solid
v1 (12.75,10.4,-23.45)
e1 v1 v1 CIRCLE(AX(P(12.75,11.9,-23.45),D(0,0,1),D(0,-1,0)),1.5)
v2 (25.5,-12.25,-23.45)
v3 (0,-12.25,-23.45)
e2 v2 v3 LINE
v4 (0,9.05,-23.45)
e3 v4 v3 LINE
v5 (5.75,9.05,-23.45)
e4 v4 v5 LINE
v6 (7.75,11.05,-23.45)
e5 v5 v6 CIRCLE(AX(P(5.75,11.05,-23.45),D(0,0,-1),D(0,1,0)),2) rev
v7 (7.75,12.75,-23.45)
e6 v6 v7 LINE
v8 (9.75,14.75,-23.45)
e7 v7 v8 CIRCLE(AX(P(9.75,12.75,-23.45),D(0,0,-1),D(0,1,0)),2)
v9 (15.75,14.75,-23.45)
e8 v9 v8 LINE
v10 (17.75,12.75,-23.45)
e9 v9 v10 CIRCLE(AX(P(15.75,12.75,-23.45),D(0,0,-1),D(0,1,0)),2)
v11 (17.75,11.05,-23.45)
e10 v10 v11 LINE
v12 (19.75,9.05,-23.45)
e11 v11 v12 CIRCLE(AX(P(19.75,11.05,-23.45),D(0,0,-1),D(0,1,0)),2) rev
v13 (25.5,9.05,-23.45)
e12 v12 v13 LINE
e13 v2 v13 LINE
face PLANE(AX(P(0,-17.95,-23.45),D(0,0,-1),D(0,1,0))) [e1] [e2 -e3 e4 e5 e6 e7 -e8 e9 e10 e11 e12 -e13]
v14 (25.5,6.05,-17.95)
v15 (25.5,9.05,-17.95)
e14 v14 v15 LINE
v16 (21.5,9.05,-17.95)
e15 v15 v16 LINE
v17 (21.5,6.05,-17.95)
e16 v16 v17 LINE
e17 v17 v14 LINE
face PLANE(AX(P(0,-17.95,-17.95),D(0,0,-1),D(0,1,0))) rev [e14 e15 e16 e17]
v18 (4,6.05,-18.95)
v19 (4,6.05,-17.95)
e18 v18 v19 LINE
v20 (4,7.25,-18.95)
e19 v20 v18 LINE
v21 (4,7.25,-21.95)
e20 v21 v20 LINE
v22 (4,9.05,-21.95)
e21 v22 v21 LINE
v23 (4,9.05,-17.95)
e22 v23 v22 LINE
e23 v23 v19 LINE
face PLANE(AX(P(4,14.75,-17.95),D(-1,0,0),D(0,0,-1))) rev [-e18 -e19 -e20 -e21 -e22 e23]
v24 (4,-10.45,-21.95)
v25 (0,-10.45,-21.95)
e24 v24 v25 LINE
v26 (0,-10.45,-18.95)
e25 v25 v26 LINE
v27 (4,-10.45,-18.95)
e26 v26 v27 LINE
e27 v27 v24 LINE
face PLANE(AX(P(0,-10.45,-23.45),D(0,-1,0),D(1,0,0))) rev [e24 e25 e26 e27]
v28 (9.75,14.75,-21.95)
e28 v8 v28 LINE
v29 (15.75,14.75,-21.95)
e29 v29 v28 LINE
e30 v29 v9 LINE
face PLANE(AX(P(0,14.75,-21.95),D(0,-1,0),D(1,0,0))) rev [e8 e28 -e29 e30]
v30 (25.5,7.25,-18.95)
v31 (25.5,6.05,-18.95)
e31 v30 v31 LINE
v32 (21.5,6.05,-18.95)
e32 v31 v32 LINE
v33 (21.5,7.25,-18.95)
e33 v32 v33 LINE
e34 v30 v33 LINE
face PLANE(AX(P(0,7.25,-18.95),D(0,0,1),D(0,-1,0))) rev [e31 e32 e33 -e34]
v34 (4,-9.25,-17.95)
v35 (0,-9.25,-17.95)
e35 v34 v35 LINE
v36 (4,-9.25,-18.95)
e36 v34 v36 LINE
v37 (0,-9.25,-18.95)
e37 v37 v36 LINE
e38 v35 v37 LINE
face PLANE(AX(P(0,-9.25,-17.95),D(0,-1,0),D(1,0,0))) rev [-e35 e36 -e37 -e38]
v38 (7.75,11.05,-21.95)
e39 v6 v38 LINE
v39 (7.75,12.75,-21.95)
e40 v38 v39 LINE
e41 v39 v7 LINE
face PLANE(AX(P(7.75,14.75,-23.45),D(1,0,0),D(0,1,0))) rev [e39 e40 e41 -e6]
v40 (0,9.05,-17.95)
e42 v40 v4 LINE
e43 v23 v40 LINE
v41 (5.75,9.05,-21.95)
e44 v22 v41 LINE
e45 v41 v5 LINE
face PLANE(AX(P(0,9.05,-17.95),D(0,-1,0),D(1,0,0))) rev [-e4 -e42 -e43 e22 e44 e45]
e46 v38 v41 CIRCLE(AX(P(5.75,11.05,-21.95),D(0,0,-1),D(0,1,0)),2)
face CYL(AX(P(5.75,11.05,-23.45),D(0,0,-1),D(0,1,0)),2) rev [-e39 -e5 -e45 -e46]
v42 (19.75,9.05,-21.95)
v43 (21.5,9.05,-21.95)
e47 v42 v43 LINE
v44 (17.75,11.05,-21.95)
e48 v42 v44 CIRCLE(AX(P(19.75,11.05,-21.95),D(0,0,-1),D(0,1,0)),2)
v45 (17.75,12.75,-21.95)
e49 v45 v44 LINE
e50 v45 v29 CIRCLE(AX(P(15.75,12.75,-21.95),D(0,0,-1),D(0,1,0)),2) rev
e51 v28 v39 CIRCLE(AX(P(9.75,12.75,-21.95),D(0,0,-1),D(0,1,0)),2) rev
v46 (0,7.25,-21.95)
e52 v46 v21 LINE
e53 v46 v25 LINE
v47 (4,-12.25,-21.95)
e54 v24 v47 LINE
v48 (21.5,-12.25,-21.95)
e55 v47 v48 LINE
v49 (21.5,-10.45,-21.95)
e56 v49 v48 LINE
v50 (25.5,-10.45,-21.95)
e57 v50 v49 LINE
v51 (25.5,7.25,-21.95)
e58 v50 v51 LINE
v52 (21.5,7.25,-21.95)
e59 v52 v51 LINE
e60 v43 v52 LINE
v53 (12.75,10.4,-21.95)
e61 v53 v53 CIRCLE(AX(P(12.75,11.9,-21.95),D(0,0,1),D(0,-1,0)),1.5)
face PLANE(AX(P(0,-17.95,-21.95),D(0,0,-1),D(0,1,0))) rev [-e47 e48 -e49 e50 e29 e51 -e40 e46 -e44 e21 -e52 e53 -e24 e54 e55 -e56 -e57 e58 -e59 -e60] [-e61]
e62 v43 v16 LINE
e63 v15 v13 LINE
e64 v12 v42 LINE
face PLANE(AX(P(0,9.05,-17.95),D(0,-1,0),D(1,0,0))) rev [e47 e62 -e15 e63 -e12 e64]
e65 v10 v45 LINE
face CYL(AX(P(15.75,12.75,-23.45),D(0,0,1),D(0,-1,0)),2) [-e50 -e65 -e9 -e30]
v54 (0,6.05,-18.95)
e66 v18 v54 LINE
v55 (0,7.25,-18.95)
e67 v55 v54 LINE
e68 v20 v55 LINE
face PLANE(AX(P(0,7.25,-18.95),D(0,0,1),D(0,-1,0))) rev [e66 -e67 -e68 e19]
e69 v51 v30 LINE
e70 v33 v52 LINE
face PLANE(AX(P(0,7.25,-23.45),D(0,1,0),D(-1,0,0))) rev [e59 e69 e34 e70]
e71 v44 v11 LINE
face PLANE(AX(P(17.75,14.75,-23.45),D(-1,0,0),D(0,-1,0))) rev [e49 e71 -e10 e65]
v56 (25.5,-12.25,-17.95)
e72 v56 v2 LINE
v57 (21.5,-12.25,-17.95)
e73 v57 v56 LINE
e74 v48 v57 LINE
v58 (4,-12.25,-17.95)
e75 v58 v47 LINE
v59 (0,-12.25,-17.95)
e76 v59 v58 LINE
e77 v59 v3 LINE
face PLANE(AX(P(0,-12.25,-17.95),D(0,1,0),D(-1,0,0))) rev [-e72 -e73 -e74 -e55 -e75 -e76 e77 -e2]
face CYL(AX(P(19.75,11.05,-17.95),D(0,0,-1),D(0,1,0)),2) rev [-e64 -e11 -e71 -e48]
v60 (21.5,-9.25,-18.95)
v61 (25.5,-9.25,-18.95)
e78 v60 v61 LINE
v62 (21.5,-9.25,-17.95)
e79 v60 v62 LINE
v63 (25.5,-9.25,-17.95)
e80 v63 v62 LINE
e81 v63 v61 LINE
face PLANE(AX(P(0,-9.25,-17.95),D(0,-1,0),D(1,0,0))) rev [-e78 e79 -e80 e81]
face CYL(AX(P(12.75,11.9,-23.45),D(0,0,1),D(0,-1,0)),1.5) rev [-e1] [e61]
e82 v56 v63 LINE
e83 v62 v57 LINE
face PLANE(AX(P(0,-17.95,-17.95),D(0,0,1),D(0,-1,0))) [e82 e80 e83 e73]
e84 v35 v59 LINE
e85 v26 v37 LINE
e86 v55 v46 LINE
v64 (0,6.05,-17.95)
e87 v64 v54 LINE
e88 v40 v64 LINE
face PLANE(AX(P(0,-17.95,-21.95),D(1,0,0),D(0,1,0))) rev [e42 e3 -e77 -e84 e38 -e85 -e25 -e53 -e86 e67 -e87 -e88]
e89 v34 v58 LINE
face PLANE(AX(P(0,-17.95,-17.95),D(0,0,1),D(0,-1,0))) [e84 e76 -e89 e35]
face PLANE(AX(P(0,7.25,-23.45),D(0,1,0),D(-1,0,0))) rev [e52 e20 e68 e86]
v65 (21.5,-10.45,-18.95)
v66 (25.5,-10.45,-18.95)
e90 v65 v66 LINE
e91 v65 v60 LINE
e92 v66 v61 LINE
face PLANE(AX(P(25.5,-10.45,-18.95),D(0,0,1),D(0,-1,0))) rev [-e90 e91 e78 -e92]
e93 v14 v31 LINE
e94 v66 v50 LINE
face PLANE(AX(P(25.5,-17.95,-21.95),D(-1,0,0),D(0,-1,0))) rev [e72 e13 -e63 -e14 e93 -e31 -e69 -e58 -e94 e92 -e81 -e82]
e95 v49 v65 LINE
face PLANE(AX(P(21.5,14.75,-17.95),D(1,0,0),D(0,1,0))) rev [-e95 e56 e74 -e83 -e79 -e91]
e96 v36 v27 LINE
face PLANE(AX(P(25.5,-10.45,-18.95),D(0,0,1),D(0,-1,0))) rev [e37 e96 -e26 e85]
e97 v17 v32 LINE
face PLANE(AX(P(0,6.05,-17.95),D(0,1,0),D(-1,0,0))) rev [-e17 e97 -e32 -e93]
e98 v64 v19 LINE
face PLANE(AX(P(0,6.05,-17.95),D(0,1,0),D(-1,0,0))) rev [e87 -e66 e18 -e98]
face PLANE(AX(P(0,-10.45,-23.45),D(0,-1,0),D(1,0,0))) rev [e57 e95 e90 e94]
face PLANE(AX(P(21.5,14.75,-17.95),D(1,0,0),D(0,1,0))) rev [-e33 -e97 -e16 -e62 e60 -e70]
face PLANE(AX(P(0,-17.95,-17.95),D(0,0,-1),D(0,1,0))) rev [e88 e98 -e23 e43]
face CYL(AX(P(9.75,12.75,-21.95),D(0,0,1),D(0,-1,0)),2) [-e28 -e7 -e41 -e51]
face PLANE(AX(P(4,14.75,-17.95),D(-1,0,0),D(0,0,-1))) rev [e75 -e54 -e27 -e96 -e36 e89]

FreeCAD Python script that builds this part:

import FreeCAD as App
import Part
import Sketcher
Q = App.Units.Quantity


def edges_at(feature, points):
    """Names of the edges that pass closest to the given points."""
    edges = feature.Shape.Edges
    near = lambda p: min(range(len(edges)), key=lambda i: edges[i].distToShape(Part.Vertex(*p))[0])
    return sorted({f"Edge{near(p) + 1}" for p in points})


def add_polygon(sketch, points):
    """Adds a closed chain of lines whose ends are joined by coincident constraints."""
    first, n = sketch.GeometryCount, len(points)
    for a, b in zip(points, points[1:] + points[:1]):
        sketch.addGeometry(Part.LineSegment(App.Vector(*a, 0), App.Vector(*b, 0)), False)
    for i in range(n):
        sketch.addConstraint(Sketcher.Constraint("Coincident", first + i, 2, first + (i + 1) % n, 1))

doc = App.newDocument("Part")
body = doc.addObject("PartDesign::Body", "Body")

# Sketch on XZ plane
sketch1 = body.newObject("Sketcher::SketchObject", "Sketch")
sketch1.AttachmentSupport = (doc.getObject("XZ_Plane"), [""])
sketch1.MapMode = "FlatFace"
add_polygon(sketch1, [(0, -33), (0, 0), (26, 0), (26, -33)])  # lines 0-3
sketch1.addConstraint(Sketcher.Constraint("Vertical", 0))
sketch1.addConstraint(Sketcher.Constraint("Horizontal", 1))
sketch1.addConstraint(Sketcher.Constraint("Vertical", 2))
sketch1.addConstraint(Sketcher.Constraint("Horizontal", 3))
sketch1.addConstraint(Sketcher.Constraint("Coincident", 0, 2, -1, 1))
sketch1.addConstraint(Sketcher.Constraint("DistanceX", 1, 1, 1, 2, Q("25.5 mm")))
sketch1.addConstraint(Sketcher.Constraint("DistanceY", 0, 1, 0, 2, Q("32.7 mm")))
pad1 = body.newObject("PartDesign::Pad", "Pad")
pad1.Profile = sketch1
pad1.Length = 1.5
pad1.Reversed = True

# Sketch on XZ plane
sketch2 = body.newObject("Sketcher::SketchObject", "Sketch001")
sketch2.AttachmentSupport = (doc.getObject("XZ_Plane"), [""])
sketch2.MapMode = "FlatFace"
sketch2.AttachmentOffset = App.Placement(App.Vector(0, 0, -1.5), App.Rotation())
add_polygon(sketch2, [(0, -27), (0, -24), (25.5, -24), (25.5, -27)])  # lines 0-3
add_polygon(sketch2, [(0, -8.7), (0, -5.7), (25.5, -5.7), (25.5, -8.7)])  # lines 4-7
sketch2.addConstraint(Sketcher.Constraint("Vertical", 0))
sketch2.addConstraint(Sketcher.Constraint("Horizontal", 1))
sketch2.addConstraint(Sketcher.Constraint("Vertical", 2))
sketch2.addConstraint(Sketcher.Constraint("Horizontal", 3))
sketch2.addConstraint(Sketcher.Constraint("Vertical", 4))
sketch2.addConstraint(Sketcher.Constraint("Horizontal", 5))
sketch2.addConstraint(Sketcher.Constraint("Vertical", 6))
sketch2.addConstraint(Sketcher.Constraint("Horizontal", 7))
sketch2.addConstraint(Sketcher.Constraint("PointOnObject", 0, 2, -2))
sketch2.addConstraint(Sketcher.Constraint("PointOnObject", 4, 2, -2))
sketch2.addConstraint(Sketcher.Constraint("Vertical", 2, 2, 5, 2))
sketch2.addConstraint(Sketcher.Constraint("Equal", 2, 4))
sketch2.addConstraint(Sketcher.Constraint("DistanceY", 0, 1, 0, 2, Q("3 mm")))
sketch2.addConstraint(Sketcher.Constraint("DistanceX", 1, 1, 1, 2, Q("25.5 mm")))
sketch2.addConstraint(Sketcher.Constraint("DistanceY", 0, 2, -1, 1, Q("24 mm")))
sketch2.addConstraint(Sketcher.Constraint("DistanceY", 4, 2, -1, 1, Q("5.7 mm")))
pad2 = body.newObject("PartDesign::Pad", "Pad001")
pad2.Profile = sketch2
pad2.Length = 4
pad2.Reversed = True

# Sketch on XY plane
sketch3 = body.newObject("Sketcher::SketchObject", "Sketch002")
sketch3.AttachmentSupport = (doc.getObject("XY_Plane"), [""])
sketch3.MapMode = "FlatFace"
sketch3.AttachmentOffset = App.Placement(App.Vector(0, 0, -24), App.Rotation())
add_polygon(sketch3, [(0, 4.5), (0, 1.5), (25.5, 1.5), (25.5, 4.5)])  # lines 0-3
sketch3.addConstraint(Sketcher.Constraint("Vertical", 0))
sketch3.addConstraint(Sketcher.Constraint("Horizontal", 1))
sketch3.addConstraint(Sketcher.Constraint("Vertical", 2))
sketch3.addConstraint(Sketcher.Constraint("Horizontal", 3))
sketch3.addConstraint(Sketcher.Constraint("PointOnObject", 0, 2, -2))
sketch3.addConstraint(Sketcher.Constraint("DistanceY", 0, 2, 0, 1, Q("3 mm")))
sketch3.addConstraint(Sketcher.Constraint("DistanceX", 1, 1, 1, 2, Q("25.5 mm")))
sketch3.addConstraint(Sketcher.Constraint("DistanceY", -1, 1, 0, 2, Q("1.5 mm")))
pocket1 = body.newObject("PartDesign::Pocket", "Pocket")
pocket1.Profile = sketch3
pocket1.Length = 1.2

# Sketch on XY plane
sketch4 = body.newObject("Sketcher::SketchObject", "Sketch003")
sketch4.AttachmentSupport = (doc.getObject("XY_Plane"), [""])
sketch4.MapMode = "FlatFace"
sketch4.AttachmentOffset = App.Placement(App.Vector(0, 0, -8.7), App.Rotation())
add_polygon(sketch4, [(25.5, 4.5), (25.5, 1.5), (0, 1.5), (0, 4.5)])  # lines 0-3
sketch4.addConstraint(Sketcher.Constraint("Vertical", 0))
sketch4.addConstraint(Sketcher.Constraint("Horizontal", 1))
sketch4.addConstraint(Sketcher.Constraint("Vertical", 2))
sketch4.addConstraint(Sketcher.Constraint("Horizontal", 3))
sketch4.addConstraint(Sketcher.Constraint("PointOnObject", 1, 2, -2))
sketch4.addConstraint(Sketcher.Constraint("DistanceY", 0, 2, 0, 1, Q("3 mm")))
sketch4.addConstraint(Sketcher.Constraint("DistanceX", 1, 2, 1, 1, Q("25.5 mm")))
sketch4.addConstraint(Sketcher.Constraint("DistanceY", -1, 1, 0, 2, Q("1.5 mm")))
pocket2 = body.newObject("PartDesign::Pocket", "Pocket001")
pocket2.Profile = sketch4
pocket2.Length = 1.2
pocket2.Reversed = True

# Sketch on XZ plane
sketch5 = body.newObject("Sketcher::SketchObject", "Sketch004")
sketch5.AttachmentSupport = (doc.getObject("XZ_Plane"), [""])
sketch5.MapMode = "FlatFace"
sketch5.AttachmentOffset = App.Placement(App.Vector(0, 0, -1.5), App.Rotation())
sketch5.addGeometry(Part.Circle(App.Vector(12.8, -29.9, 0), App.Vector(0, 0, 1), 1.5), False)
sketch5.addGeometry(Part.Circle(App.Vector(12.8, -2.9, 0), App.Vector(0, 0, 1), 1.5), False)
sketch5.addConstraint(Sketcher.Constraint("Equal", 0, 1))
sketch5.addConstraint(Sketcher.Constraint("Vertical", 0, 3, 1, 3))
sketch5.addConstraint(Sketcher.Constraint("Diameter", 0, Q("3 mm")))
sketch5.addConstraint(Sketcher.Constraint("DistanceY", 0, 3, 1, 3, Q("27 mm")))
sketch5.addConstraint(Sketcher.Constraint("DistanceX", -1, 1, 0, 3, Q("12.75 mm")))
sketch5.addConstraint(Sketcher.Constraint("DistanceY", 0, 3, -1, 1, Q("29.85 mm")))
pocket3 = body.newObject("PartDesign::Pocket", "Pocket002")
pocket3.Profile = sketch5
pocket3.Type = "ThroughAll"
pocket3.Reversed = True

# Sketch on XZ plane
sketch6 = body.newObject("Sketcher::SketchObject", "Sketch005")
sketch6.AttachmentSupport = (doc.getObject("XZ_Plane"), [""])
sketch6.MapMode = "FlatFace"
add_polygon(sketch6, [(0, -6), (0, 0), (26, 0), (26, -6)])  # lines 0-3
sketch6.addConstraint(Sketcher.Constraint("Vertical", 0))
sketch6.addConstraint(Sketcher.Constraint("Horizontal", 1))
sketch6.addConstraint(Sketcher.Constraint("Vertical", 2))
sketch6.addConstraint(Sketcher.Constraint("Horizontal", 3))
sketch6.addConstraint(Sketcher.Constraint("Coincident", 0, 2, -1, 1))
sketch6.addConstraint(Sketcher.Constraint("DistanceX", 1, 1, 1, 2, Q("25.5 mm")))
sketch6.addConstraint(Sketcher.Constraint("DistanceY", 0, 1, 0, 2, Q("5.7 mm")))
pocket4 = body.newObject("PartDesign::Pocket", "Pocket003")
pocket4.Profile = sketch6
pocket4.Type = "ThroughAll"

# Sketch on XY plane
sketch7 = body.newObject("Sketcher::SketchObject", "Sketch006")
sketch7.AttachmentSupport = (doc.getObject("XY_Plane"), [""])
sketch7.MapMode = "FlatFace"
sketch7.AttachmentOffset = App.Placement(App.Vector(0, 0, -5.7), App.Rotation())
add_polygon(sketch7, [(4, 5.5), (4, 1.5), (21.5, 1.5), (21.5, 5.5)])  # lines 0-3
sketch7.addConstraint(Sketcher.Constraint("Vertical", 0))
sketch7.addConstraint(Sketcher.Constraint("Horizontal", 1))
sketch7.addConstraint(Sketcher.Constraint("Vertical", 2))
sketch7.addConstraint(Sketcher.Constraint("Horizontal", 3))
sketch7.addConstraint(Sketcher.Constraint("DistanceY", 0, 2, 0, 1, Q("4 mm")))
sketch7.addConstraint(Sketcher.Constraint("DistanceX", 1, 1, 1, 2, Q("17.5 mm")))
sketch7.addConstraint(Sketcher.Constraint("DistanceX", -1, 1, 0, 2, Q("4 mm")))
sketch7.addConstraint(Sketcher.Constraint("DistanceY", -1, 1, 0, 2, Q("1.5 mm")))
pocket5 = body.newObject("PartDesign::Pocket", "Pocket004")
pocket5.Profile = sketch7
pocket5.Type = "ThroughAll"

# Sketch on XZ plane
sketch8 = body.newObject("Sketcher::SketchObject", "Sketch007")
sketch8.AttachmentSupport = (doc.getObject("XZ_Plane"), [""])
sketch8.MapMode = "FlatFace"
sketch8.AttachmentOffset = App.Placement(App.Vector(0, 0, -1.5), App.Rotation())
add_polygon(sketch8, [(0, -33), (0, -27), (8, -27), (8, -33)])  # lines 0-3
add_polygon(sketch8, [(18, -33), (18, -27), (26, -27), (26, -33)])  # lines 4-7
sketch8.addConstraint(Sketcher.Constraint("Vertical", 0))
sketch8.addConstraint(Sketcher.Constraint("Horizontal", 1))
sketch8.addConstraint(Sketcher.Constraint("Vertical", 2))
sketch8.addConstraint(Sketcher.Constraint("Horizontal", 3))
sketch8.addConstraint(Sketcher.Constraint("Vertical", 4))
sketch8.addConstraint(Sketcher.Constraint("Horizontal", 5))
sketch8.addConstraint(Sketcher.Constraint("Vertical", 6))
sketch8.addConstraint(Sketcher.Constraint("Horizontal", 7))
sketch8.addConstraint(Sketcher.Constraint("PointOnObject", 0, 2, -2))
sketch8.addConstraint(Sketcher.Constraint("Horizontal", 1, 2, 4, 2))
sketch8.addConstraint(Sketcher.Constraint("Horizontal", 3, 2, 6, 2))
sketch8.addConstraint(Sketcher.Constraint("Equal", 3, 5))
sketch8.addConstraint(Sketcher.Constraint("DistanceY", 0, 1, 0, 2, Q("5.7 mm")))
sketch8.addConstraint(Sketcher.Constraint("DistanceY", 0, 2, -1, 1, Q("27 mm")))
sketch8.addConstraint(Sketcher.Constraint("DistanceX", 1, 2, 4, 2, Q("10 mm")))
sketch8.addConstraint(Sketcher.Constraint("DistanceX", 1, 1, 1, 2, Q("7.75 mm")))
pocket6 = body.newObject("PartDesign::Pocket", "Pocket005")
pocket6.Profile = sketch8
pocket6.Type = "ThroughAll"
pocket6.Reversed = True
doc.recompute()

fillet = body.newObject("PartDesign::Fillet", "Fillet")
fillet.Base = (pocket6, edges_at(pocket6, [
    (7.75, 0.75, -32.7),
    (7.75, 0.75, -27),
    (17.75, 0.75, -32.7),
    (17.75, 0.75, -27),
]))
fillet.Radius = 2
body2 = doc.addObject("PartDesign::Body", "Body001")
doc.recompute()

body.Placement = App.Placement(App.Vector(0, -17.95, -23.45), App.Rotation(App.Vector(1, 0, 0), 90))
boolean = body2.newObject("PartDesign::Boolean", "Boolean")
boolean.Type = "Fuse"
boolean.addObjects([body])

doc.recompute()
